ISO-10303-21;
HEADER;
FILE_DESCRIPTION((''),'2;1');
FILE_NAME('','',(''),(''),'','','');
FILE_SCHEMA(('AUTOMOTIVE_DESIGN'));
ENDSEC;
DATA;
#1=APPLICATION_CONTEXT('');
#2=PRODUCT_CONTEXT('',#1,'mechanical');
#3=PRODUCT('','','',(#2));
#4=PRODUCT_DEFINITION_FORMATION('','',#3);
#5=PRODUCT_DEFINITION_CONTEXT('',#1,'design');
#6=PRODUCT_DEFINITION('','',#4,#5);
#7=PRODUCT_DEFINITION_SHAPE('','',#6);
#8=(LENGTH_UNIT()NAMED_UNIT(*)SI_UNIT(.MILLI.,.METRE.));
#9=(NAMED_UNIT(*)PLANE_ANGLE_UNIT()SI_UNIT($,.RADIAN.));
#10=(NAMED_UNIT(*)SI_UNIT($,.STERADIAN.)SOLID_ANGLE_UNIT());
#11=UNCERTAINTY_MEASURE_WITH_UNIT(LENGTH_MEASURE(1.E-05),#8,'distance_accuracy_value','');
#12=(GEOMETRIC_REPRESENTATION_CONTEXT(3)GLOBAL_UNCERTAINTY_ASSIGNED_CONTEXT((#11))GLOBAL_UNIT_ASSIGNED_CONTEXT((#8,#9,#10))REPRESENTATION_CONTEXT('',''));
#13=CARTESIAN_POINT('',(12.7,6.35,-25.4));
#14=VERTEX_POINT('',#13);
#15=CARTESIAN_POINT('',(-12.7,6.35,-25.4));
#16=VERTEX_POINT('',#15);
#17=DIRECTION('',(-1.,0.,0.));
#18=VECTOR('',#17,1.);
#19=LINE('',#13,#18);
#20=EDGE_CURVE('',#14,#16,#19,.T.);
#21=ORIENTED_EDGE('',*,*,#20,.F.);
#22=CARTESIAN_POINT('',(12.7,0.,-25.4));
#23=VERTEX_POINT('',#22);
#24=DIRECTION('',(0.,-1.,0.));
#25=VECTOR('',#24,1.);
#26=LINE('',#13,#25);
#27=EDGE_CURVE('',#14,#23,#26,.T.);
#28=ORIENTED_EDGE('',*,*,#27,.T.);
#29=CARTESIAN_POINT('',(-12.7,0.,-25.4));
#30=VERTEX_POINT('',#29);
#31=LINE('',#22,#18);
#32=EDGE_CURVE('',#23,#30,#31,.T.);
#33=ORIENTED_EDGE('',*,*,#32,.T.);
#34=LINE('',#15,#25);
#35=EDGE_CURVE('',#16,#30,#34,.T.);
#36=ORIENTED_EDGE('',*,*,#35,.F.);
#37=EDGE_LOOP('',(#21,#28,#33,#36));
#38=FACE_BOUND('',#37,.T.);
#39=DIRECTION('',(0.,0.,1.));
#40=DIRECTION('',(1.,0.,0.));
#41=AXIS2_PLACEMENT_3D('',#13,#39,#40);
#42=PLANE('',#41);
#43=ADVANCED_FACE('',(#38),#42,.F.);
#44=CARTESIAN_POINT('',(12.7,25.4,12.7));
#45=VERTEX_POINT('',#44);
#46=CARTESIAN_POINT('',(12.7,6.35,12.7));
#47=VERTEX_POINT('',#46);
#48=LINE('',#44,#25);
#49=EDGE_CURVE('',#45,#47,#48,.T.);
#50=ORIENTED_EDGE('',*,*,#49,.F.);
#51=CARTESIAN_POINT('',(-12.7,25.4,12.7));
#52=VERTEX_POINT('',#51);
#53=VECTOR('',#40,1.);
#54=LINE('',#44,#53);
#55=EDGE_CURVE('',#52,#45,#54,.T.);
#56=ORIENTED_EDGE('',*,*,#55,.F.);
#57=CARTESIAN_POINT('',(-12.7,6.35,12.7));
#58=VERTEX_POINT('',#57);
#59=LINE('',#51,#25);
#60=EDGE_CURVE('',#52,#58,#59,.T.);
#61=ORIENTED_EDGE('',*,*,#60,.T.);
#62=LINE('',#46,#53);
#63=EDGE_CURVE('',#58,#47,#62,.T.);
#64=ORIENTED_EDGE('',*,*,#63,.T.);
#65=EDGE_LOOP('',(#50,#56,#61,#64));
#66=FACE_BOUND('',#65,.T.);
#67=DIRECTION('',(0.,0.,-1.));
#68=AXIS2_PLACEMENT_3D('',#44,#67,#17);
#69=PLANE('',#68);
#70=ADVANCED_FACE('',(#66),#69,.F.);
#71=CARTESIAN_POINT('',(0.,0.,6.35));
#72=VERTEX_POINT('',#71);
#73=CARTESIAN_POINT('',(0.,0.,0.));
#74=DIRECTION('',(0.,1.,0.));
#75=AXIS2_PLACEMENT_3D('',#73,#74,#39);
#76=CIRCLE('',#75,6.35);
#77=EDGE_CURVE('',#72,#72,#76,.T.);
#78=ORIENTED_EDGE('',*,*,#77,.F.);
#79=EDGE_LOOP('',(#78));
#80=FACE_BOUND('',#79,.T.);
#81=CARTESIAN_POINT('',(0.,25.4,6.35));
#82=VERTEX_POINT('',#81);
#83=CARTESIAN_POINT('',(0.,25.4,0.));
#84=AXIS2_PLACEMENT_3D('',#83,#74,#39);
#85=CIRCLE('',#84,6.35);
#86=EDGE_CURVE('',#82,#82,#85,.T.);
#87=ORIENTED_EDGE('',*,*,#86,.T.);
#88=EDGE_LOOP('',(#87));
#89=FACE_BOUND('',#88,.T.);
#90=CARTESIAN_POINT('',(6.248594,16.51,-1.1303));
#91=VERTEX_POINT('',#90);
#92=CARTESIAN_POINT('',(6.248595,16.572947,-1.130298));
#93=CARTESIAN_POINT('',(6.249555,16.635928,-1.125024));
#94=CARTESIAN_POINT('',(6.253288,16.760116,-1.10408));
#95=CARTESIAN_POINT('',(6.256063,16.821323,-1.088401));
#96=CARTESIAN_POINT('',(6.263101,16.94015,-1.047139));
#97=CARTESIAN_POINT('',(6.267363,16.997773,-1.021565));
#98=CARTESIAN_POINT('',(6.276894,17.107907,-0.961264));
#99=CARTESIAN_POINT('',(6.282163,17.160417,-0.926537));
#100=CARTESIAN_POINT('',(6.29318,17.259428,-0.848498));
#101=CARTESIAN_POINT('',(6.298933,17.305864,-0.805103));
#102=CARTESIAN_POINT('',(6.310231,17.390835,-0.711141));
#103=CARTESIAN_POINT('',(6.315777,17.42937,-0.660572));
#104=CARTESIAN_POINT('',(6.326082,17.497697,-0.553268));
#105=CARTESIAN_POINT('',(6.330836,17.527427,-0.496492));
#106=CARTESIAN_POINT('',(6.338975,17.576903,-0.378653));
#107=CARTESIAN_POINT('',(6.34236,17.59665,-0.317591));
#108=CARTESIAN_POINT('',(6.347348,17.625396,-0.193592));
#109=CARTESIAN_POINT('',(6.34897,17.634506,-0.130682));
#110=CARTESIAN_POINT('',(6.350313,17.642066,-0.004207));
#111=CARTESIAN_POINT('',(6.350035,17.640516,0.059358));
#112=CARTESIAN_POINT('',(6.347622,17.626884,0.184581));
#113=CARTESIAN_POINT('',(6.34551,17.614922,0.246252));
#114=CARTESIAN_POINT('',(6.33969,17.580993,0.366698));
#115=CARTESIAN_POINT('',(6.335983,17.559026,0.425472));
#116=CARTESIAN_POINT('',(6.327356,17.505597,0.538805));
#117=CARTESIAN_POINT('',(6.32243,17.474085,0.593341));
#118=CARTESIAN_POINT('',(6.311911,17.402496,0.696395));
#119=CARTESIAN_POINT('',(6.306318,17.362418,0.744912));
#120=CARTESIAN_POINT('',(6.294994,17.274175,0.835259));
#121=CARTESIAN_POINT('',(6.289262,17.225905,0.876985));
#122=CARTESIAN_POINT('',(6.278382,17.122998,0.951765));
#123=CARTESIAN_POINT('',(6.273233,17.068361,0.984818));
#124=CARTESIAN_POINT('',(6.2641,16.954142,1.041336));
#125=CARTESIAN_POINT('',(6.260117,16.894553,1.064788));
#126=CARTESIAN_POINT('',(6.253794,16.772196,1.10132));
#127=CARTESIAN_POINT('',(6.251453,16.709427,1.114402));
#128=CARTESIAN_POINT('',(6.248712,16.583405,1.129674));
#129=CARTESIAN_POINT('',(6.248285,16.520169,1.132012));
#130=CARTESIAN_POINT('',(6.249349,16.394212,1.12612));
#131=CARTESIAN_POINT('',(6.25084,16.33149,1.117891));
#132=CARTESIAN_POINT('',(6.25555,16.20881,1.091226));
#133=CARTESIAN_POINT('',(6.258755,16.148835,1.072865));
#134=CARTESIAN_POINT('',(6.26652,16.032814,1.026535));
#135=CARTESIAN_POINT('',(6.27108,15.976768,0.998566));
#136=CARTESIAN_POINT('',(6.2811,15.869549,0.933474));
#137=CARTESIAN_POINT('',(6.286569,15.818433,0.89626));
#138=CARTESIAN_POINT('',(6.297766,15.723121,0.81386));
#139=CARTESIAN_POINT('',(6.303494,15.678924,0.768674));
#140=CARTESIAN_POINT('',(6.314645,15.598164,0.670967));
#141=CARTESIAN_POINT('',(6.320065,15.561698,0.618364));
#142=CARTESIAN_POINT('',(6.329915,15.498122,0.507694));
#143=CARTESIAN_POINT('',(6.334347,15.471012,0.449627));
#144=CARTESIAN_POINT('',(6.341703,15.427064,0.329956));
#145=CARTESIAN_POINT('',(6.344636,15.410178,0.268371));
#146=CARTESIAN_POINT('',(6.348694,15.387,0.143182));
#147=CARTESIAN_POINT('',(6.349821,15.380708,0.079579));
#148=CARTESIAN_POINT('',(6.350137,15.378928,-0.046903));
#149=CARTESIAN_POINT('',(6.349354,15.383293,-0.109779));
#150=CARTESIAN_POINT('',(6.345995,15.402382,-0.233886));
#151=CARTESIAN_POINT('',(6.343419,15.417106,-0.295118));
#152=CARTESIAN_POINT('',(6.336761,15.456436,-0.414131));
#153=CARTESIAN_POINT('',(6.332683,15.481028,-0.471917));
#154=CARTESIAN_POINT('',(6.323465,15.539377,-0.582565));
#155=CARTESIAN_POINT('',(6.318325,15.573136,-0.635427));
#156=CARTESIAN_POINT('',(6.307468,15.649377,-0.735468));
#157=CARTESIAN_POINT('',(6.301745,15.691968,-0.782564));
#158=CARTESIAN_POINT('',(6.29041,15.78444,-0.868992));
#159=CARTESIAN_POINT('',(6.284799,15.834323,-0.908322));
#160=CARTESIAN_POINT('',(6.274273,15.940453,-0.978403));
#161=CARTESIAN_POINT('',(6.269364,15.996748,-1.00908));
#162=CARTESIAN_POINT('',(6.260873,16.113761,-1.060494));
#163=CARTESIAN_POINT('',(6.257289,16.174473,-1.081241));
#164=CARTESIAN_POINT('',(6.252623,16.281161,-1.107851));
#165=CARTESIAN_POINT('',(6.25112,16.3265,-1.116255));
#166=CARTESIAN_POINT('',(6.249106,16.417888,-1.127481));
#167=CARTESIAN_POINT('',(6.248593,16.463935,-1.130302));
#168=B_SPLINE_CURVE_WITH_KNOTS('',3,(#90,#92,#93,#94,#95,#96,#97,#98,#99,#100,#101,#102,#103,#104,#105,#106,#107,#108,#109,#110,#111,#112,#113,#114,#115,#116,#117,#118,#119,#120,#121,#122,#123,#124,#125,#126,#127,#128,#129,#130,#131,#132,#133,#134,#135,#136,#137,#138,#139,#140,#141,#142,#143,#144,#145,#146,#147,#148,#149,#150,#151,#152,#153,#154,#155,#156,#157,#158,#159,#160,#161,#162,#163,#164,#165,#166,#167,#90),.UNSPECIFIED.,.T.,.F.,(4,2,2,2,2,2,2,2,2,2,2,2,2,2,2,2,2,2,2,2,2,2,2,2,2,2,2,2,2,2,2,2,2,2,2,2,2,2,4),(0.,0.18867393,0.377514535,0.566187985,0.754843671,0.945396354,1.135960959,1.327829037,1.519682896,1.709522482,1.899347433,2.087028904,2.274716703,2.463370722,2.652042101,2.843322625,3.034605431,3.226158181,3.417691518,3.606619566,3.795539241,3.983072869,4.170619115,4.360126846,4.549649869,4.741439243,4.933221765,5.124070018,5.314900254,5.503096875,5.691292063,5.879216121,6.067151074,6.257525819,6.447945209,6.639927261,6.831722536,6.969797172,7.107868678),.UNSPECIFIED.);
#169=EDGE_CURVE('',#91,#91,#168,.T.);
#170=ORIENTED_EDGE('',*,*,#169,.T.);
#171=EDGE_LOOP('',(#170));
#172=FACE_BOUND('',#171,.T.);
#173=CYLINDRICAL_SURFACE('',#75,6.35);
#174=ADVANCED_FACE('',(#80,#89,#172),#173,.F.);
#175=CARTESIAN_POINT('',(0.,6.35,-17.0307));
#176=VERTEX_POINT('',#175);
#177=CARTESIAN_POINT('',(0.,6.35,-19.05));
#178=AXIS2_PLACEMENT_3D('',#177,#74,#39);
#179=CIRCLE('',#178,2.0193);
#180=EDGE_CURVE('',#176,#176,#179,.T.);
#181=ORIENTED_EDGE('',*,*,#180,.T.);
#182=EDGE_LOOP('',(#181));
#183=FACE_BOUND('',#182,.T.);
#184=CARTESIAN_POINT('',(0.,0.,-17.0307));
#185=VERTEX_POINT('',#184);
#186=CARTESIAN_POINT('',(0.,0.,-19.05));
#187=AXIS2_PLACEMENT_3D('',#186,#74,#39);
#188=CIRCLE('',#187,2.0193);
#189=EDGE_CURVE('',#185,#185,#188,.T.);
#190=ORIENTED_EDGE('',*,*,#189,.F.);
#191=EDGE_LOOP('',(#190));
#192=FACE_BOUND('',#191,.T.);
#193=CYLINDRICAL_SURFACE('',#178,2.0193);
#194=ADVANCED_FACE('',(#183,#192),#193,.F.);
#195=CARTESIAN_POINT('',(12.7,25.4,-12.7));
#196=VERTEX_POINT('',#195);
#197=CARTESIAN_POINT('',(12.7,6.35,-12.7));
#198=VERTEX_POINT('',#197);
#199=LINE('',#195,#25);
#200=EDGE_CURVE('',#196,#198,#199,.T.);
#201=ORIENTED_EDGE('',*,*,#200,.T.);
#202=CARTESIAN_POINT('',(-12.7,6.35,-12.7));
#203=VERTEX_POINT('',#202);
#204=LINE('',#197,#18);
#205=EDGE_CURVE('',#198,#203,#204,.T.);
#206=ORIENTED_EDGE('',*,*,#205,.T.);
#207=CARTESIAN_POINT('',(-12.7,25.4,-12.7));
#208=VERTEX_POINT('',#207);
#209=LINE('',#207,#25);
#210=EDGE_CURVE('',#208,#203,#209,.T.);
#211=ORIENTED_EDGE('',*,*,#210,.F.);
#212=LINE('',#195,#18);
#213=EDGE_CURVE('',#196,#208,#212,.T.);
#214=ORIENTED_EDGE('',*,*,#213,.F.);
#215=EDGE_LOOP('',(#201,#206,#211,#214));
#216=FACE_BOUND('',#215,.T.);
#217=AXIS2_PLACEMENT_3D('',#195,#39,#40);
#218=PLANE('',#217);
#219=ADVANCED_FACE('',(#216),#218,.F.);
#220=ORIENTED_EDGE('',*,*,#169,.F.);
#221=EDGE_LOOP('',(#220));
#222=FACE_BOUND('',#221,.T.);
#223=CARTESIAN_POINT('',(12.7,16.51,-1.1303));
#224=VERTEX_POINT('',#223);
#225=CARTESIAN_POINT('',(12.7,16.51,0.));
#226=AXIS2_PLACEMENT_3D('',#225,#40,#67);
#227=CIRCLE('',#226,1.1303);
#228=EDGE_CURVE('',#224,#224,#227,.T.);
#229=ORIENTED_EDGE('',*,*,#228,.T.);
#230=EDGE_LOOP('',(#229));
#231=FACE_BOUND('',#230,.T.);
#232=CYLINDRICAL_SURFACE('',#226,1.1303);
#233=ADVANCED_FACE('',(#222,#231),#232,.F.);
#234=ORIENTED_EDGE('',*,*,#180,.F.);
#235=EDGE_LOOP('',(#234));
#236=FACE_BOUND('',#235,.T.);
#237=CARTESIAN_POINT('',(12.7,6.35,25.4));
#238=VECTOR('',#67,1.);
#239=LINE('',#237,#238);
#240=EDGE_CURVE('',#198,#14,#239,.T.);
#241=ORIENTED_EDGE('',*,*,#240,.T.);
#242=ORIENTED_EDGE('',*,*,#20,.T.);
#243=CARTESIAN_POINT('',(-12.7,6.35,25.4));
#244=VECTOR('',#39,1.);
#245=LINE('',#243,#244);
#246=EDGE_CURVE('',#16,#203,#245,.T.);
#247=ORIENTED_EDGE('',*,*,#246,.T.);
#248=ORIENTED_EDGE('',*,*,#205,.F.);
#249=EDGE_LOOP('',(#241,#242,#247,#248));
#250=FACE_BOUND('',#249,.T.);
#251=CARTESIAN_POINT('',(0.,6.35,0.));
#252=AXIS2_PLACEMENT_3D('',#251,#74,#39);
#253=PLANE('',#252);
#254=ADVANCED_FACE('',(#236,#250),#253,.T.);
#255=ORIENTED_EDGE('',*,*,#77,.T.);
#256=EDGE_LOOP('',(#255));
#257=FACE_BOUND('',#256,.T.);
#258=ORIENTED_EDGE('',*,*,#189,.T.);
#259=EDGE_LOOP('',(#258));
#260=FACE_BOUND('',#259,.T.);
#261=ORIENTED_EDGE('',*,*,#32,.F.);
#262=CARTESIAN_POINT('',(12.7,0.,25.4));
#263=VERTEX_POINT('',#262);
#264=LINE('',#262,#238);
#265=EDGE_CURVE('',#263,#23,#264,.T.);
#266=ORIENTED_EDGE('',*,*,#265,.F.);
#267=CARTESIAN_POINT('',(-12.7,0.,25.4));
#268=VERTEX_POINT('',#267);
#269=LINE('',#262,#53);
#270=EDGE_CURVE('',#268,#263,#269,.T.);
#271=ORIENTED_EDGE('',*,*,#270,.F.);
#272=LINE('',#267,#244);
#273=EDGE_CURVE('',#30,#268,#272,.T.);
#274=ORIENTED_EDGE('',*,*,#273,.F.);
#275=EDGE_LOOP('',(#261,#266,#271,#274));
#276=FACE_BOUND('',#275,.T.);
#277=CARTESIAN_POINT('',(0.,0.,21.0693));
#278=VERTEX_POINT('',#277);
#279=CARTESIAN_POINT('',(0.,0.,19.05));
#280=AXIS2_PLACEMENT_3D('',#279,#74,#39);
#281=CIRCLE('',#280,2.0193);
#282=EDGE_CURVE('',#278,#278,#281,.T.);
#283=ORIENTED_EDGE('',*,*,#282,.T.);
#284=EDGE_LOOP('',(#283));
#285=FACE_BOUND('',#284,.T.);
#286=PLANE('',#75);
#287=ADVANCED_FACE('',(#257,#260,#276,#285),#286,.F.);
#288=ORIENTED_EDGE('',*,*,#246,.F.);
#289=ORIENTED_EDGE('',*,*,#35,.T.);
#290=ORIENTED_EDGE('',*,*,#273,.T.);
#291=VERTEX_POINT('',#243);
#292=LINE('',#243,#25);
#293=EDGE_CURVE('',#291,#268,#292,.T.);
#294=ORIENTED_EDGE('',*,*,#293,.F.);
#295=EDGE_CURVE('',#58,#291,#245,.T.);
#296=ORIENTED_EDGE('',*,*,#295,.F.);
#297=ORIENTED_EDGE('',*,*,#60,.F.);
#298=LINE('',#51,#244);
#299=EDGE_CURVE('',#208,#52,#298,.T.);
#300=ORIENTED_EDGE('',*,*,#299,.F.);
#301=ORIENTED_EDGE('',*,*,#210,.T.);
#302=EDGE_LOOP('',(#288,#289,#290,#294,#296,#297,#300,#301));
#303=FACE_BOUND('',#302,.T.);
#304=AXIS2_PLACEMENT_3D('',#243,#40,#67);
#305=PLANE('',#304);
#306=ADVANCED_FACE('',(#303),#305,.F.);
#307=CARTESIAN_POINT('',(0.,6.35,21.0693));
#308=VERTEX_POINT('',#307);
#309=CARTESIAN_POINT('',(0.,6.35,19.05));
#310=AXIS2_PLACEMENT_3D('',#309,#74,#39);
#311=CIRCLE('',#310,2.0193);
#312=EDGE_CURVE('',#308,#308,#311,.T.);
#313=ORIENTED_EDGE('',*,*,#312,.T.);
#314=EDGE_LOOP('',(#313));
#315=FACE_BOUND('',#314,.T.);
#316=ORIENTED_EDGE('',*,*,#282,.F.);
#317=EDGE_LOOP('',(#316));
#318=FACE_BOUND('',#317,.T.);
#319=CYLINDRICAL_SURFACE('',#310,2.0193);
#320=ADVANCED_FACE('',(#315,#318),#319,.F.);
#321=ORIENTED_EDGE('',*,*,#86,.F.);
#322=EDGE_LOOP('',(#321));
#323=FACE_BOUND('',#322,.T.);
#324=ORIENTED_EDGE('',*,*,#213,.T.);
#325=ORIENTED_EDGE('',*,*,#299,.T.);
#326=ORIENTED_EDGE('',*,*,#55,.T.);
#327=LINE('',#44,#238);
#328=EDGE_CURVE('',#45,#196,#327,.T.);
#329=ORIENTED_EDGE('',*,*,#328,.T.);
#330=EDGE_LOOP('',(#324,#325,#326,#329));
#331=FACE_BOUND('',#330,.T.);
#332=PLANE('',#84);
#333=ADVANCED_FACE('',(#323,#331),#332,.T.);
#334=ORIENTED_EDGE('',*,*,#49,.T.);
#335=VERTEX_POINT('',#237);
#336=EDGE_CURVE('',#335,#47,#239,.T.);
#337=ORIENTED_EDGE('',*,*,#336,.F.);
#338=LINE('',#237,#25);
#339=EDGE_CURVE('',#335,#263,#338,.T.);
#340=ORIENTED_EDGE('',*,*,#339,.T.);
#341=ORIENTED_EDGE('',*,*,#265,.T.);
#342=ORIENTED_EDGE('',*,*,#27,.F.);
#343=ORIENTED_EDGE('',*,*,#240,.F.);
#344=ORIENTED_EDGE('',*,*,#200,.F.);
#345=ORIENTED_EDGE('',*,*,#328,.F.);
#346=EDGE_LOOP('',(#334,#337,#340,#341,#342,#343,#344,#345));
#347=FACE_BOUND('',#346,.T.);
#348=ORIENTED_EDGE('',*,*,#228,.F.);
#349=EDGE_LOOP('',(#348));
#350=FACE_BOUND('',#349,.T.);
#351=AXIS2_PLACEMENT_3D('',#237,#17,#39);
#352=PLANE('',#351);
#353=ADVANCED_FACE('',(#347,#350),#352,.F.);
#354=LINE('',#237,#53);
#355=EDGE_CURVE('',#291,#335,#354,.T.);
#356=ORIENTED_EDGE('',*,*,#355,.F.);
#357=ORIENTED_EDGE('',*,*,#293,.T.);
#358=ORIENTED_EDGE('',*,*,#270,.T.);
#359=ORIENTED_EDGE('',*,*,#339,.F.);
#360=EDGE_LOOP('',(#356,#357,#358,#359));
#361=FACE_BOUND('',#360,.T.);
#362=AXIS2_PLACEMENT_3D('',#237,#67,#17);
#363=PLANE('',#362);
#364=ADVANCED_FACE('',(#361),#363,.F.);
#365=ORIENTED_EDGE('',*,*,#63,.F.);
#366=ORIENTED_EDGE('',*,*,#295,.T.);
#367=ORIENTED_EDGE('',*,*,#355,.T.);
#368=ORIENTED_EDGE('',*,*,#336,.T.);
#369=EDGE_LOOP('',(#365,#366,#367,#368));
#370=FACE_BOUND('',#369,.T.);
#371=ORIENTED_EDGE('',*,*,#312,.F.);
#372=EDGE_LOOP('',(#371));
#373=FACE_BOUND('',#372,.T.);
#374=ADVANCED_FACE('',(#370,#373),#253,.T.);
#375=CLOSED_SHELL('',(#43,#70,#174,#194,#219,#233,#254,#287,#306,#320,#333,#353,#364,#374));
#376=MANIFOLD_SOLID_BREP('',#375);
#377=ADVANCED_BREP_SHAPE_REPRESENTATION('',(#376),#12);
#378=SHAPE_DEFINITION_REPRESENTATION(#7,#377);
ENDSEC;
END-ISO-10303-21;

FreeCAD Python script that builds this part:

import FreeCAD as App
import Part
import Sketcher

V = App.Vector
Q = App.Units.Quantity

doc = App.newDocument("Part")
params = doc.addObject("Spreadsheet::Sheet", "Params")
for row, (alias, value) in enumerate([
    ("sketch1_width", "1 in"),
    ("sketch1_height", "2 in"),
    ("pad1_length", "0.25 in"),
    ("sketch2_width", "1 in"),
    ("pad2_length", "0.75 in"),
    ("sketch3_diameter", "0.5 in"),
    ("sketch4_diameter", "0.159 in"),
    ("hole_diameter", "0.159 in"),
    ("sketch5_diameter", "0.089 in"),
    ("pocket2_length", "6.451406 mm"),
], start=1):
    params.set(f"A{row}", alias)
    params.set(f"B{row}", "=" + value)
    params.setAlias(f"B{row}", alias)

body = doc.addObject("PartDesign::Body", "Body")

# Sketch on XZ plane
sketch1 = body.newObject("Sketcher::SketchObject", "Sketch")
sketch1.AttachmentSupport = (doc.getObject("XZ_Plane"), [""])
sketch1.MapMode = "FlatFace"
sketch1.addGeometry(Part.LineSegment(V(-12.7, -25.4, 0), V(-12.7, 25.4, 0)), False)
sketch1.addGeometry(Part.LineSegment(V(-12.7, 25.4, 0), V(12.7, 25.4, 0)), False)
sketch1.addGeometry(Part.LineSegment(V(12.7, 25.4, 0), V(12.7, -25.4, 0)), False)
sketch1.addGeometry(Part.LineSegment(V(12.7, -25.4, 0), V(-12.7, -25.4, 0)), False)
sketch1.addConstraint(Sketcher.Constraint("Coincident", 0, 2, 1, 1))
sketch1.addConstraint(Sketcher.Constraint("Coincident", 1, 2, 2, 1))
sketch1.addConstraint(Sketcher.Constraint("Coincident", 2, 2, 3, 1))
sketch1.addConstraint(Sketcher.Constraint("Coincident", 3, 2, 0, 1))
sketch1.addConstraint(Sketcher.Constraint("Vertical", 0))
sketch1.addConstraint(Sketcher.Constraint("Horizontal", 1))
sketch1.addConstraint(Sketcher.Constraint("Vertical", 2))
sketch1.addConstraint(Sketcher.Constraint("Horizontal", 3))
sketch1.addConstraint(Sketcher.Constraint("Symmetric", 0, 2, 2, 2, -1, 1))
sketch1.addConstraint(Sketcher.Constraint("DistanceX", 1, 1, 1, 2, Q("1 in")))
sketch1.addConstraint(Sketcher.Constraint("DistanceY", 0, 1, 0, 2, Q("2 in")))
sketch1.setExpression("Constraints[9]", "Params.sketch1_width")
sketch1.setExpression("Constraints[10]", "Params.sketch1_height")
pad1 = body.newObject("PartDesign::Pad", "Pad")
pad1.Profile = sketch1
pad1.setExpression("Length", "Params.pad1_length")
pad1.Reversed = True

# Sketch on XZ plane
sketch2 = body.newObject("Sketcher::SketchObject", "Sketch001")
sketch2.AttachmentSupport = (doc.getObject("XZ_Plane"), [""])
sketch2.MapMode = "FlatFace"
sketch2.AttachmentOffset = App.Placement(V(0, 0, -0.25 * 25.4), App.Rotation())
sketch2.addGeometry(Part.LineSegment(V(-12.7, -12.7, 0), V(-12.7, 12.7, 0)), False)
sketch2.addGeometry(Part.LineSegment(V(-12.7, 12.7, 0), V(12.7, 12.7, 0)), False)
sketch2.addGeometry(Part.LineSegment(V(12.7, 12.7, 0), V(12.7, -12.7, 0)), False)
sketch2.addGeometry(Part.LineSegment(V(12.7, -12.7, 0), V(-12.7, -12.7, 0)), False)
sketch2.addConstraint(Sketcher.Constraint("Coincident", 0, 2, 1, 1))
sketch2.addConstraint(Sketcher.Constraint("Coincident", 1, 2, 2, 1))
sketch2.addConstraint(Sketcher.Constraint("Coincident", 2, 2, 3, 1))
sketch2.addConstraint(Sketcher.Constraint("Coincident", 3, 2, 0, 1))
sketch2.addConstraint(Sketcher.Constraint("Vertical", 0))
sketch2.addConstraint(Sketcher.Constraint("Horizontal", 1))
sketch2.addConstraint(Sketcher.Constraint("Vertical", 2))
sketch2.addConstraint(Sketcher.Constraint("Horizontal", 3))
sketch2.addConstraint(Sketcher.Constraint("Symmetric", 0, 2, 2, 2, -1, 1))
sketch2.addConstraint(Sketcher.Constraint("Equal", 3, 0))
sketch2.addConstraint(Sketcher.Constraint("DistanceX", 1, 1, 1, 2, Q("1 in")))
sketch2.setExpression("Constraints[10]", "Params.sketch2_width")
pad2 = body.newObject("PartDesign::Pad", "Pad001")
pad2.Profile = sketch2
pad2.setExpression("Length", "Params.pad2_length")
pad2.Reversed = True

# Sketch on XZ plane
sketch3 = body.newObject("Sketcher::SketchObject", "Sketch002")
sketch3.AttachmentSupport = (doc.getObject("XZ_Plane"), [""])
sketch3.MapMode = "FlatFace"
sketch3.AttachmentOffset = App.Placement(V(0, 0, -1 * 25.4), App.Rotation())
sketch3.addGeometry(Part.Circle(V(0, 0, 0), V(0, 0, 1), 6.35), False)
sketch3.addConstraint(Sketcher.Constraint("Coincident", 0, 3, -1, 1))
sketch3.addConstraint(Sketcher.Constraint("Diameter", 0, Q("0.5 in")))
sketch3.setExpression("Constraints[1]", "Params.sketch3_diameter")
pocket1 = body.newObject("PartDesign::Pocket", "Pocket")
pocket1.Profile = sketch3
pocket1.Type = "ThroughAll"
pocket1.Reversed = True

# Sketch on XZ plane
sketch4 = body.newObject("Sketcher::SketchObject", "Sketch003")
sketch4.AttachmentSupport = (doc.getObject("XZ_Plane"), [""])
sketch4.MapMode = "FlatFace"
sketch4.AttachmentOffset = App.Placement(V(0, 0, -0.25 * 25.4), App.Rotation())
sketch4.addGeometry(Part.Circle(V(0, -19.05, 0), V(0, 0, 1), 2.0193), False)
sketch4.addGeometry(Part.Circle(V(0, 19.05, 0), V(0, 0, 1), 2.0193), False)
sketch4.addConstraint(Sketcher.Constraint("Equal", 0, 1))
sketch4.addConstraint(Sketcher.Constraint("Symmetric", 0, 3, 1, 3, -1, 1))
sketch4.addConstraint(Sketcher.Constraint("PointOnObject", 0, 3, -2))
sketch4.addConstraint(Sketcher.Constraint("Diameter", 0, Q("0.159 in")))
sketch4.addConstraint(Sketcher.Constraint("DistanceY", 0, 3, 1, 3, Q("1.5 in")))
sketch4.setExpression("Constraints[3]", "Params.sketch4_diameter")
doc.recompute()
hole = body.newObject("PartDesign::Hole", "Hole")
hole.Profile = sketch4
hole.ThreadType = "None"
hole.setExpression("Diameter", "Params.hole_diameter")
hole.DepthType = "ThroughAll"
hole.Reversed = True

# Sketch on YZ plane
sketch5 = body.newObject("Sketcher::SketchObject", "Sketch004")
sketch5.AttachmentSupport = (doc.getObject("YZ_Plane"), [""])
sketch5.MapMode = "FlatFace"
sketch5.AttachmentOffset = App.Placement(V(0, 0, 0.5 * 25.4), App.Rotation())
sketch5.addGeometry(Part.Circle(V(16.51, 0, 0), V(0, 0, 1), 1.1303), False)
sketch5.addConstraint(Sketcher.Constraint("PointOnObject", 0, 3, -1))
sketch5.addConstraint(Sketcher.Constraint("Diameter", 0, Q("0.089 in")))
sketch5.addConstraint(Sketcher.Constraint("DistanceX", -1, 1, 0, 3, Q("0.65 in")))
sketch5.setExpression("Constraints[1]", "Params.sketch5_diameter")
pocket2 = body.newObject("PartDesign::Pocket", "Pocket001")
pocket2.Profile = sketch5
pocket2.setExpression("Length", "Params.pocket2_length")

doc.recompute()
